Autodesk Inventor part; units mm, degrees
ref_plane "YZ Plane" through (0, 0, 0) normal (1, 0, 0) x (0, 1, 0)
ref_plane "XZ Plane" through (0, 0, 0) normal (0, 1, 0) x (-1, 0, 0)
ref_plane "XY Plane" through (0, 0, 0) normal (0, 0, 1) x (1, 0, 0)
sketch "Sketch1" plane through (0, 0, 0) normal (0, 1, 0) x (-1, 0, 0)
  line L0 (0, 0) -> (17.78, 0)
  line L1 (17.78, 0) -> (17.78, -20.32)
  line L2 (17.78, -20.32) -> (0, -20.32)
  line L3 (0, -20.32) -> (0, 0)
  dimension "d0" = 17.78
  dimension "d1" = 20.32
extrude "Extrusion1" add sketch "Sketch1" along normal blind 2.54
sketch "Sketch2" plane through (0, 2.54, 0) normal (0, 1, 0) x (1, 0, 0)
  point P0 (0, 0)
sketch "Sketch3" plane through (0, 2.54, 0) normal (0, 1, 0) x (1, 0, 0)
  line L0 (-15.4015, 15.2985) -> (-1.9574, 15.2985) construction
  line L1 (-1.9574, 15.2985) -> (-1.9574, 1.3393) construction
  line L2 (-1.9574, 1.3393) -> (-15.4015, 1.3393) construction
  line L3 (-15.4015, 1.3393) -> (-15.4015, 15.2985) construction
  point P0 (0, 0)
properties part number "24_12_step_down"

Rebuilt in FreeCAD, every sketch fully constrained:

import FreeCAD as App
import Part
import Sketcher
Q = App.Units.Quantity


def add_polygon(sketch, points):
    """Adds a closed chain of lines whose ends are joined by coincident constraints."""
    first, n = sketch.GeometryCount, len(points)
    for a, b in zip(points, points[1:] + points[:1]):
        sketch.addGeometry(Part.LineSegment(App.Vector(*a, 0), App.Vector(*b, 0)), False)
    for i in range(n):
        sketch.addConstraint(Sketcher.Constraint("Coincident", first + i, 2, first + (i + 1) % n, 1))

doc = App.newDocument("Part")
body = doc.addObject("PartDesign::Body", "Body")

# Sketch on XZ plane
sketch1 = body.newObject("Sketcher::SketchObject", "Sketch")
sketch1.AttachmentSupport = (doc.getObject("XZ_Plane"), [""])
sketch1.MapMode = "FlatFace"
add_polygon(sketch1, [(-18, 0), (0, 0), (0, -20), (-18, -20)])  # lines 0-3
sketch1.addConstraint([
    Sketcher.Constraint("Horizontal", 0),
    Sketcher.Constraint("Vertical", 1),
    Sketcher.Constraint("Horizontal", 2),
    Sketcher.Constraint("Vertical", 3),
    Sketcher.Constraint("Coincident", 0, 2, -1, 1),
    Sketcher.Constraint("DistanceX", 0, 1, 0, 2, Q("0.7 in")),
    Sketcher.Constraint("DistanceY", 1, 2, 1, 1, Q("0.8 in")),
])
pad1 = body.newObject("PartDesign::Pad", "Pad")
pad1.Profile = sketch1
pad1.Length = Q("0.1 in")
pad1.Reversed = True

doc.recompute()
